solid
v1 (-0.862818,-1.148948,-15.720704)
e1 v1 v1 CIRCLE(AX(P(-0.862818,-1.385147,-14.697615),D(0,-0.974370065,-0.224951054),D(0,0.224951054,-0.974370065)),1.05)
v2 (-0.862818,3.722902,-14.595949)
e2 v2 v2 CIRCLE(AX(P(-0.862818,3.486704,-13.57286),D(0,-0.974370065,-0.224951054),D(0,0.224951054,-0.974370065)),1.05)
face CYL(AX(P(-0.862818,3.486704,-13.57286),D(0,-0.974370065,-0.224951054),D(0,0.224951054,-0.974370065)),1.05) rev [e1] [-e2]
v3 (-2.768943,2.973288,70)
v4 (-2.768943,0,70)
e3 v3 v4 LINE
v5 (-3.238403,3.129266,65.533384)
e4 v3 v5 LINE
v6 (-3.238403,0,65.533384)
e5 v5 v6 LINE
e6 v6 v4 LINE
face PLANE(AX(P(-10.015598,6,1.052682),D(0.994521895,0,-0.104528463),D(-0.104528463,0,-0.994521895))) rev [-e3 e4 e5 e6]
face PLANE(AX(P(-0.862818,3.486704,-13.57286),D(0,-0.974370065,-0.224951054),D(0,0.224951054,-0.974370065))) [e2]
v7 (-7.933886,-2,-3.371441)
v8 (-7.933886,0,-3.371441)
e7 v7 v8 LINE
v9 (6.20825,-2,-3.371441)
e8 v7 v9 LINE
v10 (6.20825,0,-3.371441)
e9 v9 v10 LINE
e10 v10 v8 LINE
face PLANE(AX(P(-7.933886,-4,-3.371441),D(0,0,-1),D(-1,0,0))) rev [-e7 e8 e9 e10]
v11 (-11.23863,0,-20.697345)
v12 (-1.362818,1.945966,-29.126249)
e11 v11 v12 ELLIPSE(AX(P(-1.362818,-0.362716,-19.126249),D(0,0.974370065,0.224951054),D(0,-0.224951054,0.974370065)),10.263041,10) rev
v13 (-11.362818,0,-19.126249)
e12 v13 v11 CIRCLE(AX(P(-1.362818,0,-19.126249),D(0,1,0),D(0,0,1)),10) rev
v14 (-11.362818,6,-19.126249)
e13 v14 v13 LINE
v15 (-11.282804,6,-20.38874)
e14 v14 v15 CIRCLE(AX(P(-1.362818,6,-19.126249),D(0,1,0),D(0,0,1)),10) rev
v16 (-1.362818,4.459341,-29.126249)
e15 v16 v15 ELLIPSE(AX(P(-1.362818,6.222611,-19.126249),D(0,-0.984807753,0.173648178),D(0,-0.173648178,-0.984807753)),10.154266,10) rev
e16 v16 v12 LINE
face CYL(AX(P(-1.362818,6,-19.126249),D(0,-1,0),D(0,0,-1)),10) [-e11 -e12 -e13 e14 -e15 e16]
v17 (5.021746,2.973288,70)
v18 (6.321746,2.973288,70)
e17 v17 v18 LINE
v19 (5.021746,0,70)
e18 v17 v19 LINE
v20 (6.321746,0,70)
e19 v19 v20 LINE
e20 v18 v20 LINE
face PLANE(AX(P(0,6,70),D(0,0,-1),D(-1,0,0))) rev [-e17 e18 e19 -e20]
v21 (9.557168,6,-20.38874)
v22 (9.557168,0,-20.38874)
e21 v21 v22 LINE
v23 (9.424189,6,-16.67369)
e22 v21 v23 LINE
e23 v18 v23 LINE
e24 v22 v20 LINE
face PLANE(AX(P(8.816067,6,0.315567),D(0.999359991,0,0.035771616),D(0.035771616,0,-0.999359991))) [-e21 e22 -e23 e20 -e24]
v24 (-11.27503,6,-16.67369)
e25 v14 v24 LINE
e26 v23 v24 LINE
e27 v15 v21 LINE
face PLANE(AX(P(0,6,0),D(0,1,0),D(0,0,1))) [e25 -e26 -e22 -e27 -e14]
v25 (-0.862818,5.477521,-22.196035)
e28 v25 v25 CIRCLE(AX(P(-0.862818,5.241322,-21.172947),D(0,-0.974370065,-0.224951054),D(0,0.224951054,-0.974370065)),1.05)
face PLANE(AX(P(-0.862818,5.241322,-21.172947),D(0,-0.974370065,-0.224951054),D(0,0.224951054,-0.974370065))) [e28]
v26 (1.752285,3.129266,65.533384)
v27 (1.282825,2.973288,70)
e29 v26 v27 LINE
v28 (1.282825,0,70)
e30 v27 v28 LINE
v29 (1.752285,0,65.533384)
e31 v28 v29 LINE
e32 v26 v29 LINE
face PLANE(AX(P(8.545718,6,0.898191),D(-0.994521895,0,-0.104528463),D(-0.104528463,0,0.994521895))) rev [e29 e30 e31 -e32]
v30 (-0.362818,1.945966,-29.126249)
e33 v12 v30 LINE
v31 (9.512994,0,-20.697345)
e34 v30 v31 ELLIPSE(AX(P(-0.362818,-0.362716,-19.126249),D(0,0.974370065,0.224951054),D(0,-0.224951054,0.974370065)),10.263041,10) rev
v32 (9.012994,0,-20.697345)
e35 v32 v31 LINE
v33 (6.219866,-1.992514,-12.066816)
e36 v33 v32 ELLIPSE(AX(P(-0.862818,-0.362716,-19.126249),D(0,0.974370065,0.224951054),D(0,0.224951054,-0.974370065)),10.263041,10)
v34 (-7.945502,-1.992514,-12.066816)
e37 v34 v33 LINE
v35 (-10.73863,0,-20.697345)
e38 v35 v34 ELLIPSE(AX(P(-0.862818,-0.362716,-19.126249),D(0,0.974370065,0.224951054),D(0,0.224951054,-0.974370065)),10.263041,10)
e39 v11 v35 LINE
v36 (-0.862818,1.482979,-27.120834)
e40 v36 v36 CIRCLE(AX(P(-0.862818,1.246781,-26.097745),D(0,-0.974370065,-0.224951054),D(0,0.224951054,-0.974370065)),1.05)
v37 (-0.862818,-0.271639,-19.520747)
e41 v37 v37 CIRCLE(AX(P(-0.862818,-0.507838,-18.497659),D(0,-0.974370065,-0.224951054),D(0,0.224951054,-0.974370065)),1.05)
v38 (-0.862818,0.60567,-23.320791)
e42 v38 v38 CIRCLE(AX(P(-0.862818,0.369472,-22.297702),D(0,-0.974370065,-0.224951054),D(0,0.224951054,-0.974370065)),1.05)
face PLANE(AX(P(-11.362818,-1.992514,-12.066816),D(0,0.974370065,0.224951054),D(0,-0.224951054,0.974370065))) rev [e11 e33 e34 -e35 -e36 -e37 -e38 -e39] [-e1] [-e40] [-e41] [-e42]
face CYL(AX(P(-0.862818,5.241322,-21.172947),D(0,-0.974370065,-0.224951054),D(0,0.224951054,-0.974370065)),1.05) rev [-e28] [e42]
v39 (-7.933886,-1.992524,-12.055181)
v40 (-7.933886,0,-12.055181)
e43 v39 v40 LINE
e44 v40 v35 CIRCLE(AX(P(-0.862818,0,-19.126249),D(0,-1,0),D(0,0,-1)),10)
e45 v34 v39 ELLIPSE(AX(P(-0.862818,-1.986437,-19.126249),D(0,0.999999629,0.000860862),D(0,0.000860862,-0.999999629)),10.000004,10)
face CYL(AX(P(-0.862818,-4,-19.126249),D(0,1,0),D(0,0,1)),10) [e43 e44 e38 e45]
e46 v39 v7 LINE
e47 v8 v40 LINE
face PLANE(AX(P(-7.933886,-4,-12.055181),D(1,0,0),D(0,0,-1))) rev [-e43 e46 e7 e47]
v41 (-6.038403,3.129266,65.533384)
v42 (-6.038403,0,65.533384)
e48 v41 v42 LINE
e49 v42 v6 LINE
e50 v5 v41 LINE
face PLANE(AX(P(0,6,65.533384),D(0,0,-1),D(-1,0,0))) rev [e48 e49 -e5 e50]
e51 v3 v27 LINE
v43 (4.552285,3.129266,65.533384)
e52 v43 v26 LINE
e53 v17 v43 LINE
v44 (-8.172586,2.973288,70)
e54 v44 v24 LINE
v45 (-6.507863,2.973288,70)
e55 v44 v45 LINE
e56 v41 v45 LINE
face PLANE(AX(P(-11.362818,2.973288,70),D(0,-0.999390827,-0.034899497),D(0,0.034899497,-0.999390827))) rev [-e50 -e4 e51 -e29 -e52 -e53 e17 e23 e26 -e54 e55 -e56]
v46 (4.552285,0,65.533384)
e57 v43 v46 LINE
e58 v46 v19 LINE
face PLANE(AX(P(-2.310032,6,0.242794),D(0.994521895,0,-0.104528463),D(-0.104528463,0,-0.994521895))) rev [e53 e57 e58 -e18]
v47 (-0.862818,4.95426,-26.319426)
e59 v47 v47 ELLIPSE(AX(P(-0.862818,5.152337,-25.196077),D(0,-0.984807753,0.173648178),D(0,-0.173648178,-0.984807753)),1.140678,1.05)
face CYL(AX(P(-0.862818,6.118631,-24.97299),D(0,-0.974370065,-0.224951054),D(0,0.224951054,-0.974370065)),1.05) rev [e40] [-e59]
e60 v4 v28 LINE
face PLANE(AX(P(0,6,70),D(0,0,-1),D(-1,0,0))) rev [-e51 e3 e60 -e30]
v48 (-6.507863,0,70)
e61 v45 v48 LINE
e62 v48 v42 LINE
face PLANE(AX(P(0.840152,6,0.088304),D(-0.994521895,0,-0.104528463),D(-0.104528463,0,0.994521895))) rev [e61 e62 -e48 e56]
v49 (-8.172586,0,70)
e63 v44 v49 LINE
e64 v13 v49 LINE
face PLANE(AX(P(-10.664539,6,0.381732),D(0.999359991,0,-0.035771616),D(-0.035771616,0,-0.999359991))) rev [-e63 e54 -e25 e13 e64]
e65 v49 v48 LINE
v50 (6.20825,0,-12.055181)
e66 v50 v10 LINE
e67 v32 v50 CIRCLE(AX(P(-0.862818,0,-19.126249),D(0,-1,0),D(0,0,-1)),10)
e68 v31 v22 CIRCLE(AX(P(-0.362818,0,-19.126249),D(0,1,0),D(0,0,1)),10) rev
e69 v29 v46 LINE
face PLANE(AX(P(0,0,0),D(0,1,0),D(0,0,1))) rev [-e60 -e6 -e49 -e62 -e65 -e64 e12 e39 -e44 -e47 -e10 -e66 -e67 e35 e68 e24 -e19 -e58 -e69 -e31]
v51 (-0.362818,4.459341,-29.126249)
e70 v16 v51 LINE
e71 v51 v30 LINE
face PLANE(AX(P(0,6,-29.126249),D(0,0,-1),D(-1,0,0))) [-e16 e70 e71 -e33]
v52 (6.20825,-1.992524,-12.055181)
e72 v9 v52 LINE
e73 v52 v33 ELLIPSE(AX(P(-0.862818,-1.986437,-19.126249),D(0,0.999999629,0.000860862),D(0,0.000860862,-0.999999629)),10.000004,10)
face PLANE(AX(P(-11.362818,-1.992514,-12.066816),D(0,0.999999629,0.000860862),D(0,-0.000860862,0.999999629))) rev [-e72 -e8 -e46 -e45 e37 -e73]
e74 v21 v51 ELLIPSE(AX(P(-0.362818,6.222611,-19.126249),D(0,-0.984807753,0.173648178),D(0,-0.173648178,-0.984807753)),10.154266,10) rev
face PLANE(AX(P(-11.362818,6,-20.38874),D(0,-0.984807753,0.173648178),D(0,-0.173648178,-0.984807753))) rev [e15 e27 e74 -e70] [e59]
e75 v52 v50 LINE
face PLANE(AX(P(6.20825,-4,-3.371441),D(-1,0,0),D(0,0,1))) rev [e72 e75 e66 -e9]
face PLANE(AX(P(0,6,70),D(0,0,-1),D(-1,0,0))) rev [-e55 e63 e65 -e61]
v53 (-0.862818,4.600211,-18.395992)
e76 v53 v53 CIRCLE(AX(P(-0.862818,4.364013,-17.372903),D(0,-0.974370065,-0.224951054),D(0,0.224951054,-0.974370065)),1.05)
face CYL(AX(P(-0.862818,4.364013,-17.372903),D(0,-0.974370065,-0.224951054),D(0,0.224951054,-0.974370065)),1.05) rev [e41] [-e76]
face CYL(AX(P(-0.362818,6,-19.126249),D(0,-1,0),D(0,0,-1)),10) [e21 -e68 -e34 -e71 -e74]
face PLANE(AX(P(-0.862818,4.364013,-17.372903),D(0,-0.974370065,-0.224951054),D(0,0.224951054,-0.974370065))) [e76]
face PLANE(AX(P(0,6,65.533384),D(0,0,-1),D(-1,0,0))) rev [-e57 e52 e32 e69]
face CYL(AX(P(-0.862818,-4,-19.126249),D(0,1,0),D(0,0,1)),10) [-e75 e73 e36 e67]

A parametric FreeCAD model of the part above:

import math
import FreeCAD as App
import Part
import Sketcher
Q = App.Units.Quantity

doc = App.newDocument("Part")
body = doc.addObject("PartDesign::Body", "Body")

sketch1 = body.newObject("Sketcher::SketchObject", "Sketch")
sketch1.AttachmentSupport = (doc.getObject("XZ_Plane"), [""])
sketch1.MapMode = "FlatFace"
sketch1.addGeometry([
    Part.LineSegment(App.Vector(6.3, 70, 0), App.Vector(9.6, -20.4, 0)),
    Part.ArcOfCircle(Part.Circle(App.Vector(-0.4, -19.1, 0), App.Vector(0, 0, 1), 10), math.radians(-90), math.radians(-7)),
    Part.LineSegment(App.Vector(-0.4, -29.1, 0), App.Vector(-1.4, -29.1, 0)),
    Part.ArcOfCircle(Part.Circle(App.Vector(-1.4, -19.1, 0), App.Vector(0, 0, 1), 10), math.radians(180), math.radians(270)),
    Part.LineSegment(App.Vector(-11.4, -19.1, 0), App.Vector(-8.2, 70, 0)),
    Part.LineSegment(App.Vector(-8.2, 70, 0), App.Vector(-6.5, 70, 0)),
    Part.LineSegment(App.Vector(-6.5, 70, 0), App.Vector(-6, 65.5, 0)),
    Part.LineSegment(App.Vector(-6, 65.5, 0), App.Vector(-3.2, 65.5, 0)),
    Part.LineSegment(App.Vector(-3.2, 65.5, 0), App.Vector(-2.8, 70, 0)),
    Part.LineSegment(App.Vector(-2.8, 70, 0), App.Vector(1.3, 70, 0)),
    Part.LineSegment(App.Vector(1.3, 70, 0), App.Vector(1.8, 65.5, 0)),
    Part.LineSegment(App.Vector(1.8, 65.5, 0), App.Vector(4.6, 65.5, 0)),
    Part.LineSegment(App.Vector(4.6, 65.5, 0), App.Vector(5, 70, 0)),
    Part.LineSegment(App.Vector(5, 70, 0), App.Vector(6.3, 70, 0)),
], False)
sketch1.addConstraint([
    Sketcher.Constraint("Coincident", 0, 2, 1, 2),
    Sketcher.Constraint("Tangent", 1, 1, 2, 1),
    Sketcher.Constraint("Tangent", 2, 2, 3, 2),
    Sketcher.Constraint("Coincident", 3, 1, 4, 1),
    Sketcher.Constraint("Coincident", 4, 2, 5, 1),
    Sketcher.Constraint("Coincident", 5, 2, 6, 1),
    Sketcher.Constraint("Coincident", 6, 2, 7, 1),
    Sketcher.Constraint("Coincident", 7, 2, 8, 1),
    Sketcher.Constraint("Coincident", 8, 2, 9, 1),
    Sketcher.Constraint("Coincident", 9, 2, 10, 1),
    Sketcher.Constraint("Coincident", 10, 2, 11, 1),
    Sketcher.Constraint("Coincident", 11, 2, 12, 1),
    Sketcher.Constraint("Coincident", 12, 2, 13, 1),
    Sketcher.Constraint("Coincident", 13, 2, 0, 1),
    Sketcher.Constraint("Horizontal", 2),
    Sketcher.Constraint("Horizontal", 5),
    Sketcher.Constraint("Horizontal", 7),
    Sketcher.Constraint("Horizontal", 9),
    Sketcher.Constraint("Horizontal", 11),
    Sketcher.Constraint("Horizontal", 13),
    Sketcher.Constraint("Equal", 1, 3),
    Sketcher.Constraint("Parallel", 6, 10),
    Sketcher.Constraint("Parallel", 8, 12),
    Sketcher.Constraint("Horizontal", 1, 3, 3, 1),
    Sketcher.Constraint("Horizontal", 5, 2, 8, 2),
    Sketcher.Constraint("Horizontal", 7, 2, 10, 2),
    Sketcher.Constraint("Horizontal", 9, 2, 12, 2),
    Sketcher.Constraint("Equal", 7, 11),
    Sketcher.Constraint("Equal", 6, 8),
    Sketcher.Constraint("Radius", 1, Q("10 mm")),
    Sketcher.Constraint("DistanceX", 2, 2, 2, 1, Q("1 mm")),
    Sketcher.Constraint("Angle", 6, Q("-84 deg")),
    Sketcher.Constraint("DistanceX", 7, 1, 7, 2, Q("2.8 mm")),
    Sketcher.Constraint("DistanceX", 13, 1, 13, 2, Q("1.3 mm")),
    Sketcher.Constraint("DistanceY", -1, 1, 4, 2, Q("70 mm")),
    Sketcher.Constraint("Angle", 0, Q("-87.95 deg")),
    Sketcher.Constraint("Angle", 4, Q("87.95 deg")),
    Sketcher.Constraint("DistanceX", 9, 1, 9, 2, Q("4.051768 mm")),
    Sketcher.Constraint("Distance", 6, Q("4.491219 mm")),
    Sketcher.Constraint("DistanceX", 5, 1, 5, 2, Q("1.664723 mm")),
    Sketcher.Constraint("DistanceX", 1, 3, -1, 1, Q("0.362818 mm")),
    Sketcher.Constraint("DistanceY", 1, 3, -1, 1, Q("19.126249 mm")),
])
pad1 = body.newObject("PartDesign::Pad", "Pad")
pad1.Profile = sketch1
pad1.Length = 6
pad1.Reversed = True

sketch2 = body.newObject("Sketcher::SketchObject", "Sketch001")
sketch2.AttachmentSupport = (doc.getObject("YZ_Plane"), [""])
sketch2.MapMode = "FlatFace"
sketch2.addGeometry([
    Part.LineSegment(App.Vector(6, -16.7, 0), App.Vector(6, 70, 0)),
    Part.LineSegment(App.Vector(6, 70, 0), App.Vector(3, 70, 0)),
    Part.LineSegment(App.Vector(3, 70, 0), App.Vector(6, -16.7, 0)),
], False)
sketch2.addConstraint([
    Sketcher.Constraint("Coincident", 0, 2, 1, 1),
    Sketcher.Constraint("Coincident", 1, 2, 2, 1),
    Sketcher.Constraint("Coincident", 2, 2, 0, 1),
    Sketcher.Constraint("Vertical", 0),
    Sketcher.Constraint("Horizontal", 1),
    Sketcher.Constraint("Angle", 2, Q("-88 deg")),
    Sketcher.Constraint("DistanceX", -1, 1, 0, 2, Q("6 mm")),
    Sketcher.Constraint("DistanceY", -1, 1, 0, 2, Q("70 mm")),
    Sketcher.Constraint("DistanceX", 1, 2, 1, 1, Q("3.026712 mm")),
])
pocket1 = body.newObject("PartDesign::Pocket", "Pocket")
pocket1.Profile = sketch2
pocket1.Type = "ThroughAll"
pocket1.Midplane = True

sketch3 = body.newObject("Sketcher::SketchObject", "Sketch002")
sketch3.AttachmentSupport = (doc.getObject("YZ_Plane"), [""])
sketch3.MapMode = "FlatFace"
sketch3.addGeometry([
    Part.LineSegment(App.Vector(6, -20.4, 0), App.Vector(4.5, -29.1, 0)),
    Part.LineSegment(App.Vector(4.5, -29.1, 0), App.Vector(6, -29.1, 0)),
    Part.LineSegment(App.Vector(6, -29.1, 0), App.Vector(6, -20.4, 0)),
], False)
sketch3.addConstraint([
    Sketcher.Constraint("Coincident", 0, 2, 1, 1),
    Sketcher.Constraint("Coincident", 1, 2, 2, 1),
    Sketcher.Constraint("Coincident", 2, 2, 0, 1),
    Sketcher.Constraint("Horizontal", 1),
    Sketcher.Constraint("Vertical", 2),
    Sketcher.Constraint("Angle", 0, Q("-100 deg")),
    Sketcher.Constraint("DistanceX", -1, 1, 1, 2, Q("6 mm")),
    Sketcher.Constraint("Distance", 0, Q("8.8723 mm")),
    Sketcher.Constraint("DistanceY", 0, 2, -1, 1, Q("29.126249 mm")),
])
pocket2 = body.newObject("PartDesign::Pocket", "Pocket001")
pocket2.Profile = sketch3
pocket2.Type = "ThroughAll"
pocket2.Midplane = True

sketch4 = body.newObject("Sketcher::SketchObject", "Sketch003")
sketch4.AttachmentSupport = (doc.getObject("XZ_Plane"), [""])
sketch4.MapMode = "FlatFace"
sketch4.addGeometry([
    Part.LineSegment(App.Vector(-8, -3, 0), App.Vector(-8, -12, 0)),
    Part.ArcOfCircle(Part.Circle(App.Vector(-1, -19, 0), App.Vector(0, 0, 1), 10), math.radians(135), math.radians(405)),
    Part.LineSegment(App.Vector(6, -12, 0), App.Vector(6, -3, 0)),
    Part.LineSegment(App.Vector(6, -3, 0), App.Vector(-8, -3, 0)),
], False)
sketch4.addConstraint([
    Sketcher.Constraint("Coincident", 0, 2, 1, 1),
    Sketcher.Constraint("Coincident", 1, 2, 2, 1),
    Sketcher.Constraint("Coincident", 2, 2, 3, 1),
    Sketcher.Constraint("Coincident", 3, 2, 0, 1),
    Sketcher.Constraint("Vertical", 0),
    Sketcher.Constraint("Vertical", 2),
    Sketcher.Constraint("Horizontal", 3),
    Sketcher.Constraint("Horizontal", 0, 2, 1, 2),
    Sketcher.Constraint("Radius", 1, Q("10 mm")),
    Sketcher.Constraint("DistanceY", 0, 2, 0, 1, Q("8.68374 mm")),
    Sketcher.Constraint("DistanceX", 3, 2, 3, 1, Q("14.142136 mm")),
    Sketcher.Constraint("DistanceX", 1, 3, -1, 1, Q("0.862818 mm")),
    Sketcher.Constraint("DistanceY", 1, 3, -1, 1, Q("19.126249 mm")),
])
pad2 = body.newObject("PartDesign::Pad", "Pad001")
pad2.Profile = sketch4
pad2.Length = 4

sketch5 = body.newObject("Sketcher::SketchObject", "Sketch004")
sketch5.AttachmentSupport = (doc.getObject("YZ_Plane"), [""])
sketch5.MapMode = "FlatFace"
sketch5.addGeometry([
    Part.LineSegment(App.Vector(1.9, -29.1, 0), App.Vector(-2, -12.1, 0)),
    Part.LineSegment(App.Vector(-2, -12.1, 0), App.Vector(-2, -3.4, 0)),
    Part.LineSegment(App.Vector(-2, -3.4, 0), App.Vector(-4, -3.4, 0)),
    Part.LineSegment(App.Vector(-4, -3.4, 0), App.Vector(-4, -29.1, 0)),
    Part.LineSegment(App.Vector(-4, -29.1, 0), App.Vector(1.9, -29.1, 0)),
], False)
sketch5.addConstraint([
    Sketcher.Constraint("Coincident", 0, 2, 1, 1),
    Sketcher.Constraint("Coincident", 1, 2, 2, 1),
    Sketcher.Constraint("Coincident", 2, 2, 3, 1),
    Sketcher.Constraint("Coincident", 3, 2, 4, 1),
    Sketcher.Constraint("Coincident", 4, 2, 0, 1),
    Sketcher.Constraint("Horizontal", 2),
    Sketcher.Constraint("Vertical", 3),
    Sketcher.Constraint("Horizontal", 4),
    Sketcher.Constraint("DistanceX", 2, 2, 2, 1, Q("2 mm")),
    Sketcher.Constraint("Angle", 0, Q("103 deg")),
    Sketcher.Constraint("DistanceX", 1, 2, -1, 1, Q("2 mm")),
    Sketcher.Constraint("Distance", 1, Q("8.695378 mm")),
    Sketcher.Constraint("DistanceX", 4, 1, 4, 2, Q("5.945966 mm")),
    Sketcher.Constraint("DistanceY", 3, 2, 3, 1, Q("25.754808 mm")),
    Sketcher.Constraint("DistanceY", 1, 2, -1, 1, Q("3.371441 mm")),
])
pocket3 = body.newObject("PartDesign::Pocket", "Pocket002")
pocket3.Profile = sketch5
pocket3.Type = "ThroughAll"
pocket3.Midplane = True

sketch6 = body.newObject("Sketcher::SketchObject", "Sketch005")
sketch6.Placement = App.Placement(App.Vector(0, -4.536559, -1.047347), App.Rotation(App.Vector(1, 0, 0), App.Vector(0, -0.224951054, 0.974370065), App.Vector(0, -0.974370065, -0.224951054), "ZXY"))
sketch6.addGeometry([
    Part.Circle(App.Vector(-0.9, -14, 0), App.Vector(0, 0, 1), 1.1),
    Part.Circle(App.Vector(-0.9, -17.9, 0), App.Vector(0, 0, 1), 1.1),
    Part.Circle(App.Vector(-0.9, -21.8, 0), App.Vector(0, 0, 1), 1.1),
    Part.Circle(App.Vector(-0.9, -25.7, 0), App.Vector(0, 0, 1), 1.1),
], False)
sketch6.addConstraint([
    Sketcher.Constraint("Equal", 0, 1),
    Sketcher.Constraint("Equal", 1, 2),
    Sketcher.Constraint("Equal", 2, 3),
    Sketcher.Constraint("Vertical", 0, 3, 1, 3),
    Sketcher.Constraint("Vertical", 1, 3, 2, 3),
    Sketcher.Constraint("Vertical", 2, 3, 3, 3),
    Sketcher.Constraint("Diameter", 0, Q("2.1 mm")),
    Sketcher.Constraint("DistanceY", 1, 3, 0, 3, Q("3.9 mm")),
    Sketcher.Constraint("DistanceY", 2, 3, 1, 3, Q("3.9 mm")),
    Sketcher.Constraint("DistanceY", 3, 3, 2, 3, Q("3.9 mm")),
    Sketcher.Constraint("DistanceX", 0, 3, -1, 1, Q("0.862818 mm")),
    Sketcher.Constraint("DistanceY", 0, 3, -1, 1, Q("14.009326 mm")),
])
pocket4 = body.newObject("PartDesign::Pocket", "Pocket003")
pocket4.Profile = sketch6
pocket4.Length = 5

doc.recompute()
